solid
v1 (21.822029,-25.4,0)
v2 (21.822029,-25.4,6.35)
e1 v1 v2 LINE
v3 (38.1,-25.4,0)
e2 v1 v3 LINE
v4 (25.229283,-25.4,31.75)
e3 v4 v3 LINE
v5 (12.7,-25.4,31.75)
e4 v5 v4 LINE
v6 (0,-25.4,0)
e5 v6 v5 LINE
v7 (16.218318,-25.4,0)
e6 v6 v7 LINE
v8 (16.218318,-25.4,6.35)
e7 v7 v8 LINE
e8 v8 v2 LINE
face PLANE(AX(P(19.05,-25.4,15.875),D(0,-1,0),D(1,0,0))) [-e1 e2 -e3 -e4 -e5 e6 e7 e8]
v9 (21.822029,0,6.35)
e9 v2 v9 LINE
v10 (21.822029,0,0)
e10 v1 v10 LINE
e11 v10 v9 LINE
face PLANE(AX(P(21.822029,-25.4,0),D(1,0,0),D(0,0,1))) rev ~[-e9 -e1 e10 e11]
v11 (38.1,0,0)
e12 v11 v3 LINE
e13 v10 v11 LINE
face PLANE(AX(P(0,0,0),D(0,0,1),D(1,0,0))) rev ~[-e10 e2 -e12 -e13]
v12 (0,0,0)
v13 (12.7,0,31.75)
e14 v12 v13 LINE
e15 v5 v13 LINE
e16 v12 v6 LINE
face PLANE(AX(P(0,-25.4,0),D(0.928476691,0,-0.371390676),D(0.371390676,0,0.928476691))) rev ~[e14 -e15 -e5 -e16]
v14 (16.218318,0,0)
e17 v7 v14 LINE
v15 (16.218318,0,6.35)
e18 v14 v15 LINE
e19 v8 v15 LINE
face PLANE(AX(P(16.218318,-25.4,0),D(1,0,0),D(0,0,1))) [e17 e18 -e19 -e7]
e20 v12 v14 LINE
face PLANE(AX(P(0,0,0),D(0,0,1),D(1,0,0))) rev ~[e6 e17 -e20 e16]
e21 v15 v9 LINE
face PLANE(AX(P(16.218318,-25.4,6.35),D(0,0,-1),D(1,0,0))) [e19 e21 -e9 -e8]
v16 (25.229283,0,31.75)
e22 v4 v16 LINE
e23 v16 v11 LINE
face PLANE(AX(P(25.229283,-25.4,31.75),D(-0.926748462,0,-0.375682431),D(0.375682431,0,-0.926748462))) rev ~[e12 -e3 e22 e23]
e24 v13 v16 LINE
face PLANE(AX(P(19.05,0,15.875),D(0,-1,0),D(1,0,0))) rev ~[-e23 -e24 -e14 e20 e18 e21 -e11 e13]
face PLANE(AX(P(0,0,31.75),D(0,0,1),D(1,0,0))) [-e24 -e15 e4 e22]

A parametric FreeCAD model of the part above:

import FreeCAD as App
import Part
import Sketcher

V = App.Vector
Q = App.Units.Quantity


def add_polygon(sketch, points):
    """Adds a closed chain of lines whose ends are joined by coincident constraints."""
    first, n = sketch.GeometryCount, len(points)
    for a, b in zip(points, points[1:] + points[:1]):
        sketch.addGeometry(Part.LineSegment(App.Vector(*a, 0), App.Vector(*b, 0)), False)
    for i in range(n):
        sketch.addConstraint(Sketcher.Constraint("Coincident", first + i, 2, first + (i + 1) % n, 1))

doc = App.newDocument("Part")
params = doc.addObject("Spreadsheet::Sheet", "Params")
for row, (alias, value) in enumerate([
    ("sketch1_width", "1.5 in"),
    ("sketch1_height", "1.25 in"),
    ("pad1_length", "1 in"),
    ("sketch2_width", "0.5 in"),
    ("sketch2_height", "0.25 in"),
    ("pocket1_length", "1 in"),
], start=1):
    params.set(f"A{row}", alias)
    params.set(f"B{row}", "=" + value)
    params.setAlias(f"B{row}", alias)

body = doc.addObject("PartDesign::Body", "Body")

# Sketch on XZ plane
sketch1 = body.newObject("Sketcher::SketchObject", "Sketch")
sketch1.AttachmentSupport = (doc.getObject("XZ_Plane"), [""])
sketch1.MapMode = "FlatFace"
add_polygon(sketch1, [(0, 32), (0, 0), (38, 0), (38, 32)])  # lines 0-3
sketch1.addConstraint(Sketcher.Constraint("Vertical", 0))
sketch1.addConstraint(Sketcher.Constraint("Horizontal", 1))
sketch1.addConstraint(Sketcher.Constraint("Vertical", 2))
sketch1.addConstraint(Sketcher.Constraint("Horizontal", 3))
sketch1.addConstraint(Sketcher.Constraint("Coincident", 0, 2, -1, 1))
sketch1.addConstraint(Sketcher.Constraint("DistanceX", 1, 1, 1, 2, Q("1.5 in")))
sketch1.addConstraint(Sketcher.Constraint("DistanceY", 0, 2, 0, 1, Q("1.25 in")))
sketch1.setExpression("Constraints[9]", "Params.sketch1_width")
sketch1.setExpression("Constraints[10]", "Params.sketch1_height")
pad1 = body.newObject("PartDesign::Pad", "Pad")
pad1.Profile = sketch1
pad1.setExpression("Length", "Params.pad1_length")

# Sketch on XZ plane
sketch2 = body.newObject("Sketcher::SketchObject", "Sketch001")
sketch2.AttachmentSupport = (doc.getObject("XZ_Plane"), [""])
sketch2.MapMode = "FlatFace"
sketch2.AttachmentOffset = App.Placement(V(0, 0, 1 * 25.4), App.Rotation())
add_polygon(sketch2, [(16, 6), (16, 0), (22, 0), (22, 6)])  # lines 0-3
add_polygon(sketch2, [(0, 32), (0, 0), (13, 32)])  # lines 4-6
add_polygon(sketch2, [(25, 32), (38, 0), (38, 32)])  # lines 7-9
sketch2.addConstraint(Sketcher.Constraint("Vertical", 0))
sketch2.addConstraint(Sketcher.Constraint("Horizontal", 1))
sketch2.addConstraint(Sketcher.Constraint("Vertical", 2))
sketch2.addConstraint(Sketcher.Constraint("Horizontal", 3))
sketch2.addConstraint(Sketcher.Constraint("Vertical", 4))
sketch2.addConstraint(Sketcher.Constraint("Horizontal", 6))
sketch2.addConstraint(Sketcher.Constraint("Vertical", 8))
sketch2.addConstraint(Sketcher.Constraint("Horizontal", 9))
sketch2.addConstraint(Sketcher.Constraint("Coincident", 4, 2, -1, 1))
sketch2.addConstraint(Sketcher.Constraint("PointOnObject", 0, 2, -1))
sketch2.addConstraint(Sketcher.Constraint("PointOnObject", 7, 2, -1))
sketch2.addConstraint(Sketcher.Constraint("Horizontal", 6, 2, 8, 2))
sketch2.addConstraint(Sketcher.Constraint("DistanceX", 6, 2, 6, 1, Q("0.5 in")))
sketch2.addConstraint(Sketcher.Constraint("DistanceY", 3, 2, 5, 2, Q("1 in")))
sketch2.addConstraint(Sketcher.Constraint("DistanceX", 5, 2, 8, 2, Q("1 in")))
sketch2.addConstraint(Sketcher.Constraint("DistanceY", 0, 2, 0, 1, Q("0.25 in")))
sketch2.addConstraint(Sketcher.Constraint("DistanceX", 1, 1, 1, 2, Q("5.603711 mm")))
sketch2.addConstraint(Sketcher.Constraint("DistanceX", 9, 2, 9, 1, Q("12.870717 mm")))
sketch2.addConstraint(Sketcher.Constraint("DistanceX", -1, 1, 0, 2, Q("16.218318 mm")))
sketch2.setExpression("Constraints[22]", "Params.sketch2_width")
sketch2.setExpression("Constraints[25]", "Params.sketch2_height")
pocket1 = body.newObject("PartDesign::Pocket", "Pocket")
pocket1.Profile = sketch2
pocket1.setExpression("Length", "Params.pocket1_length")

doc.recompute()
